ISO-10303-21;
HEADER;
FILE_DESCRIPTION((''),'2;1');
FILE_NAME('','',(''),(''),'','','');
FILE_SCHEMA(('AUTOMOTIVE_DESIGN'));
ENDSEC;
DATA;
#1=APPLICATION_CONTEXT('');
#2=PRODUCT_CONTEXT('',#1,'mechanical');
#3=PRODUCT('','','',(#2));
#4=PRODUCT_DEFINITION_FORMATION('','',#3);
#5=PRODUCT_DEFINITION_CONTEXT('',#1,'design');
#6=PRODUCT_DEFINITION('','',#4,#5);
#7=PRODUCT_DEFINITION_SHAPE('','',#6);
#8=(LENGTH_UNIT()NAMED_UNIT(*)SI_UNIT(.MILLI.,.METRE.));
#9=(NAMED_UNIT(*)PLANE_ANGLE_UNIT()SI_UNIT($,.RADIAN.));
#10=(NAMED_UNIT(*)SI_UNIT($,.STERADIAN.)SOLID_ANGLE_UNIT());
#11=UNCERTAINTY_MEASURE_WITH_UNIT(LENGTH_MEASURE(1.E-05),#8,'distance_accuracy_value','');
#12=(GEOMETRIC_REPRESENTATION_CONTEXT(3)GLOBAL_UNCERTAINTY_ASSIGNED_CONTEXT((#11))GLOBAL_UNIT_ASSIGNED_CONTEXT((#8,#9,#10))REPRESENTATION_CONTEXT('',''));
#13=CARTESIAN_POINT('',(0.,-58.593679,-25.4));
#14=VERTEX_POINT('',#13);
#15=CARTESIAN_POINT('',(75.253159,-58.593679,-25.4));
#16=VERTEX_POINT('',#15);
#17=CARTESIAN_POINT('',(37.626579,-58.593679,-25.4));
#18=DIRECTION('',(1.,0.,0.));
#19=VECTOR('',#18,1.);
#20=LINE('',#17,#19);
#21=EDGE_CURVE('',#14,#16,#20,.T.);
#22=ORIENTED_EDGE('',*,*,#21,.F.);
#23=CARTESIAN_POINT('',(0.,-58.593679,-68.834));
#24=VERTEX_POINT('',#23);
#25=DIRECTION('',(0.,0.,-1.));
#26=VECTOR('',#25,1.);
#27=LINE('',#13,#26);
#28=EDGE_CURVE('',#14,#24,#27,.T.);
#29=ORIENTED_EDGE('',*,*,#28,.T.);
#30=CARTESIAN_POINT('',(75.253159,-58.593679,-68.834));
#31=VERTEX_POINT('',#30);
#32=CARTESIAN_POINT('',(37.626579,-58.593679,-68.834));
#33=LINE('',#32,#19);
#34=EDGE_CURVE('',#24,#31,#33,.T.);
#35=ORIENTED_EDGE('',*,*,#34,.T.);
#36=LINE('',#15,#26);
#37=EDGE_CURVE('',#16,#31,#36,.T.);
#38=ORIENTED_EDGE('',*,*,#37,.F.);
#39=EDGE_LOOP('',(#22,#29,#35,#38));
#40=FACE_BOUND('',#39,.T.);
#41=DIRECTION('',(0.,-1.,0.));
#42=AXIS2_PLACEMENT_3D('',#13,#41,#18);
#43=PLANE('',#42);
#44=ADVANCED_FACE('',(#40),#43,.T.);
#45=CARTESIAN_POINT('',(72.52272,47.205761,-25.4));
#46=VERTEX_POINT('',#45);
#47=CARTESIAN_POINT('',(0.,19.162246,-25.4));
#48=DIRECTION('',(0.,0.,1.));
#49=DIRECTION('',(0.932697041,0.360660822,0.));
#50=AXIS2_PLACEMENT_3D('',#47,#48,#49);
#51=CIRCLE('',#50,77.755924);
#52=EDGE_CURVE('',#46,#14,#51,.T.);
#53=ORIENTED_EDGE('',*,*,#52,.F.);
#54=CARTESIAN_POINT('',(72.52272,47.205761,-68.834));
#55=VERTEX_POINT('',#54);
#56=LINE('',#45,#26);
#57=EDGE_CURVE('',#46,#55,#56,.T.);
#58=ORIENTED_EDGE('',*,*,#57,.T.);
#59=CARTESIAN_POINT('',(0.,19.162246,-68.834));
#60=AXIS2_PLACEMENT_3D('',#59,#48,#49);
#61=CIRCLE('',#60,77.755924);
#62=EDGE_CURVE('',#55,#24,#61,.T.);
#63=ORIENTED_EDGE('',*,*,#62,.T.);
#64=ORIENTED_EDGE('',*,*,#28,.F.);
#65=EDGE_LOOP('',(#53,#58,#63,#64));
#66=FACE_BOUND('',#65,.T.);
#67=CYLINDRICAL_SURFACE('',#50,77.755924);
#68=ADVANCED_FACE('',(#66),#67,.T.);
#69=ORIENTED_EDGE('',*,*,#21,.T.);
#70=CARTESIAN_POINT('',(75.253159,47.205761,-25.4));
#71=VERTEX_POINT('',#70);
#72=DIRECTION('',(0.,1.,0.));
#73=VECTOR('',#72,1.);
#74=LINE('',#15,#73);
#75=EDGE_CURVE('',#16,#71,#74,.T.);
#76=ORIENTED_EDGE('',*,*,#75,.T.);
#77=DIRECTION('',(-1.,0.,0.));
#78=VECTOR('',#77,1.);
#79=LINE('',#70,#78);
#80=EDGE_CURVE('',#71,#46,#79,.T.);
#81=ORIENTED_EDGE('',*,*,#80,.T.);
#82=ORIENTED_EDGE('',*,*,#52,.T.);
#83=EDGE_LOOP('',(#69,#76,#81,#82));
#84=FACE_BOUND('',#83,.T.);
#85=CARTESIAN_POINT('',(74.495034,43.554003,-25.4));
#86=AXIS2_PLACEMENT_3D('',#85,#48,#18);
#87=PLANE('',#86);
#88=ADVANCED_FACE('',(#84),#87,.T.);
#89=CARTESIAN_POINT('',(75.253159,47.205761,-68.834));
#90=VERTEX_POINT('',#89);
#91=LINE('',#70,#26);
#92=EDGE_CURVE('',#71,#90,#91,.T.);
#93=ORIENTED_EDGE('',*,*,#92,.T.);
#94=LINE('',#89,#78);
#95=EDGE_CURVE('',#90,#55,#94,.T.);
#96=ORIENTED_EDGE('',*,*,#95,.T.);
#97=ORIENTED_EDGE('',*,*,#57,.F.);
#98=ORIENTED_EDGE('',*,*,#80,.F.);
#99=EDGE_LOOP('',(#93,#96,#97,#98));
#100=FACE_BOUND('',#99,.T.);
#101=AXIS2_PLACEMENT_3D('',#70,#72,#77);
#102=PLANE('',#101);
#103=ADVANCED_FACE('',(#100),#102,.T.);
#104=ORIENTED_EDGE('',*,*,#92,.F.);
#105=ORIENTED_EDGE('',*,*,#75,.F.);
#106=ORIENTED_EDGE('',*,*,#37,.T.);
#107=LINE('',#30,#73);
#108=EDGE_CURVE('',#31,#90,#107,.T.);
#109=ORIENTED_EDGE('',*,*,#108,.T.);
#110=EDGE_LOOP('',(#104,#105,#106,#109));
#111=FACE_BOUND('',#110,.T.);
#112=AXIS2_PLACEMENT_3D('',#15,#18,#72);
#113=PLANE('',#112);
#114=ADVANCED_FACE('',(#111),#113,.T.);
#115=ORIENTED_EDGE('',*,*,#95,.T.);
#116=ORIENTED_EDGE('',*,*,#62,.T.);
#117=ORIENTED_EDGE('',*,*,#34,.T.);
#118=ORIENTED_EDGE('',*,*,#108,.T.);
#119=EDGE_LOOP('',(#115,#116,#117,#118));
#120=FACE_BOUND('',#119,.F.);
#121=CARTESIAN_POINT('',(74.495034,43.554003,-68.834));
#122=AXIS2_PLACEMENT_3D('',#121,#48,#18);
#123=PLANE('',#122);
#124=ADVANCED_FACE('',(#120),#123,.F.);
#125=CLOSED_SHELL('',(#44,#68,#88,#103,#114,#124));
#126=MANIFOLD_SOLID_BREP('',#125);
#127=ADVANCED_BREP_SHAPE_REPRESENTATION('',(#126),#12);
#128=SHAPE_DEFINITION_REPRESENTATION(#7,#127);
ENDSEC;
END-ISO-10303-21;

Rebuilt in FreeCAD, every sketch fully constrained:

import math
import FreeCAD as App
import Part
import Sketcher

V = App.Vector
Q = App.Units.Quantity

doc = App.newDocument("Part")
body = doc.addObject("PartDesign::Body", "Body")

# Sketch on XY plane
sketch1 = body.newObject("Sketcher::SketchObject", "Sketch")
sketch1.AttachmentSupport = (doc.getObject("XY_Plane"), [""])
sketch1.MapMode = "FlatFace"
sketch1.AttachmentOffset = App.Placement(V(0, 0, -1 * 25.4), App.Rotation())
sketch1.addGeometry([
    Part.LineSegment(V(75.3, 47.2, 0), V(72.5, 47.2, 0)),
    Part.ArcOfCircle(Part.Circle(V(0, 19.2, 0), V(0, 0, 1), 77.8), math.radians(21), math.radians(270)),
    Part.LineSegment(V(0, -58.6, 0), V(75.3, -58.6, 0)),
    Part.LineSegment(V(75.3, -58.6, 0), V(75.3, 47.2, 0)),
], False)
sketch1.addConstraint([
    Sketcher.Constraint("Coincident", 0, 2, 1, 1),
    Sketcher.Constraint("Tangent", 1, 2, 2, 1),
    Sketcher.Constraint("Coincident", 2, 2, 3, 1),
    Sketcher.Constraint("Coincident", 3, 2, 0, 1),
    Sketcher.Constraint("Horizontal", 0),
    Sketcher.Constraint("Horizontal", 2),
    Sketcher.Constraint("Vertical", 3),
    Sketcher.Constraint("PointOnObject", 1, 3, -2),
    Sketcher.Constraint("Radius", 1, Q("77.755924 mm")),
    Sketcher.Constraint("DistanceX", 0, 2, 0, 1, Q("2.730438 mm")),
    Sketcher.Constraint("DistanceX", 2, 1, 2, 2, Q("75.253159 mm")),
    Sketcher.Constraint("DistanceY", -1, 1, 0, 2, Q("47.205761 mm")),
])
pad1 = body.newObject("PartDesign::Pad", "Pad")
pad1.Profile = sketch1
pad1.Length = Q("1.71 in")
pad1.Reversed = True

doc.recompute()
